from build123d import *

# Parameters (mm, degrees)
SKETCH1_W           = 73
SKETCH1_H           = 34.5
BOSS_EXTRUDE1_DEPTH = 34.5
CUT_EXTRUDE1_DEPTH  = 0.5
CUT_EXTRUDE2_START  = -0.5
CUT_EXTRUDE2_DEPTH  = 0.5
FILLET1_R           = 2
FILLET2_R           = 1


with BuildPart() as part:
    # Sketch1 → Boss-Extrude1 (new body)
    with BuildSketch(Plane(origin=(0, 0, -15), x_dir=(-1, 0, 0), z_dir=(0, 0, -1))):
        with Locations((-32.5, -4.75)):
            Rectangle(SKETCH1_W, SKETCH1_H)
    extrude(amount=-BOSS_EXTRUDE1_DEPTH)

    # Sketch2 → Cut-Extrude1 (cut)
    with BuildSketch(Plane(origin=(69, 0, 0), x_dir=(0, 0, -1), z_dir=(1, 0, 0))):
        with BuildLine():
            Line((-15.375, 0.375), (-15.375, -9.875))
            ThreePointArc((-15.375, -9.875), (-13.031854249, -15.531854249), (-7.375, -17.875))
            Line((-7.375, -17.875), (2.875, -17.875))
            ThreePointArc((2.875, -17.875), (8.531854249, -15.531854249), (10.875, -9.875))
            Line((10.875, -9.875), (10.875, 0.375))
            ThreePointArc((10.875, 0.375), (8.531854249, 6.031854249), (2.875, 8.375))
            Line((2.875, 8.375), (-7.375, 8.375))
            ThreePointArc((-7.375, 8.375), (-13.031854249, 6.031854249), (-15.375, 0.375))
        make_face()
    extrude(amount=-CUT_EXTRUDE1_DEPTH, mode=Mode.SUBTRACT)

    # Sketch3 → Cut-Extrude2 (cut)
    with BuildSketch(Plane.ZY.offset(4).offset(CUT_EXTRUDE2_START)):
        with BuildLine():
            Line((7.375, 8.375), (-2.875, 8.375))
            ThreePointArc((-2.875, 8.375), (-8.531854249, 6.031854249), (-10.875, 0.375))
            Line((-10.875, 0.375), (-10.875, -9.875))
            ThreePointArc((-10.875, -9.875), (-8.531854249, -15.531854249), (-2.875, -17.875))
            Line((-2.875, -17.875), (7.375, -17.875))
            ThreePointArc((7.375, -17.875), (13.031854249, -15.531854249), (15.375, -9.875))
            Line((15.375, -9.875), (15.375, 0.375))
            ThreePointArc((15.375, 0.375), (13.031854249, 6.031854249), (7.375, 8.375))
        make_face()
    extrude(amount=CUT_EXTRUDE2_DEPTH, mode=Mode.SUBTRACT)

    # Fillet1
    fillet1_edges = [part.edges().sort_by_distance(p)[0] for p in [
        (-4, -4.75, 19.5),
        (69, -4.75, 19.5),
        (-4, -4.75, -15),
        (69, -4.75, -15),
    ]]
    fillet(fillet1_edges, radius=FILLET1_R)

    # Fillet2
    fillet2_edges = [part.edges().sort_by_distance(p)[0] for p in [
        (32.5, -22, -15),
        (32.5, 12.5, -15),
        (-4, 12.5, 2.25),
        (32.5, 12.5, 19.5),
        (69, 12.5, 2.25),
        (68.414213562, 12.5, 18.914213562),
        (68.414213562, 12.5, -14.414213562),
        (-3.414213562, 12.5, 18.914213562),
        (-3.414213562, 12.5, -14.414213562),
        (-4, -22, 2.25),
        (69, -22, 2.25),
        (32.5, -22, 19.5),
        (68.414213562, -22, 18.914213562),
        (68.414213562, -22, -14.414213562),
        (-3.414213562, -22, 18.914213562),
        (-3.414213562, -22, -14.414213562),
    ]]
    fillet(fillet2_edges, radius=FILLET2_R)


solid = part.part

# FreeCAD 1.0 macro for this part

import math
import FreeCAD as App
import Part
import Sketcher

V = App.Vector


def edges_at(feature, points):
    """Names of the edges that pass closest to the given points."""
    edges = feature.Shape.Edges
    near = lambda p: min(range(len(edges)), key=lambda i: edges[i].distToShape(Part.Vertex(*p))[0])
    return sorted({f"Edge{near(p) + 1}" for p in points})

doc = App.newDocument("Part")
body = doc.addObject("PartDesign::Body", "Body")

# Sketch on XY plane
sketch1 = doc.addObject("Sketcher::SketchObject", "Sketch")
body.addObject(sketch1)
sketch1.AttachmentSupport = (doc.XY_Plane, [""])
sketch1.MapMode = "FlatFace"
sketch1.AttachmentOffset = App.Placement(V(0, 0, -15), App.Rotation())
sketch1.addGeometry([
    Part.LineSegment(V(69, 12, 0), V(69, -22, 0)),
    Part.LineSegment(V(69, -22, 0), V(-4, -22, 0)),
    Part.LineSegment(V(-4, -22, 0), V(-4, 12, 0)),
    Part.LineSegment(V(-4, 12, 0), V(69, 12, 0)),
], False)
sketch1.addConstraint([
    Sketcher.Constraint("Coincident", 0, 2, 1, 1),
    Sketcher.Constraint("Coincident", 1, 2, 2, 1),
    Sketcher.Constraint("Coincident", 2, 2, 3, 1),
    Sketcher.Constraint("Coincident", 3, 2, 0, 1),
    Sketcher.Constraint("Vertical", 0),
    Sketcher.Constraint("Horizontal", 1),
    Sketcher.Constraint("Vertical", 2),
    Sketcher.Constraint("Horizontal", 3),
    Sketcher.Constraint("DistanceX", 1, 2, 1, 1, 73.0),
    Sketcher.Constraint("DistanceY", 0, 2, 0, 1, 34.5),
    Sketcher.Constraint("DistanceX", -1, 1, 0, 2, 69.0),
    Sketcher.Constraint("DistanceY", 0, 2, -1, 1, 22.0),
])
pad1 = doc.addObject("PartDesign::Pad", "Pad")
body.addObject(pad1)
pad1.Profile = sketch1
pad1.Length = 34.5

# Sketch on YZ plane
sketch2 = doc.addObject("Sketcher::SketchObject", "Sketch001")
body.addObject(sketch2)
sketch2.AttachmentSupport = (doc.YZ_Plane, [""])
sketch2.MapMode = "FlatFace"
sketch2.AttachmentOffset = App.Placement(V(0, 0, 69), App.Rotation())
sketch2.addGeometry([
    Part.LineSegment(V(0, 15, 0), V(-10, 15, 0)),  # 0
    Part.ArcOfCircle(Part.Circle(V(-10, 7, 0), V(0, 0, 1), 8), math.radians(90), math.radians(180)),  # 1
    Part.LineSegment(V(-18, 7, 0), V(-18, -3, 0)),  # 2
    Part.ArcOfCircle(Part.Circle(V(-10, -3, 0), V(0, 0, 1), 8), math.radians(-180), math.radians(-90)),  # 3
    Part.LineSegment(V(-10, -11, 0), V(0, -11, 0)),  # 4
    Part.ArcOfCircle(Part.Circle(V(0, -3, 0), V(0, 0, 1), 8), math.radians(-90), math.radians(0)),  # 5
    Part.LineSegment(V(8, -3, 0), V(8, 7, 0)),  # 6
    Part.ArcOfCircle(Part.Circle(V(0, 7, 0), V(0, 0, 1), 8), math.radians(0), math.radians(90)),  # 7
], False)
sketch2.addConstraint([
    Sketcher.Constraint("Tangent", 0, 2, 1, 1),
    Sketcher.Constraint("Tangent", 1, 2, 2, 1),
    Sketcher.Constraint("Tangent", 2, 2, 3, 1),
    Sketcher.Constraint("Tangent", 3, 2, 4, 1),
    Sketcher.Constraint("Tangent", 4, 2, 5, 1),
    Sketcher.Constraint("Tangent", 5, 2, 6, 1),
    Sketcher.Constraint("Tangent", 6, 2, 7, 1),
    Sketcher.Constraint("Tangent", 7, 2, 0, 1),
    Sketcher.Constraint("Horizontal", 0),
    Sketcher.Constraint("Vertical", 2),
    Sketcher.Constraint("Horizontal", 4),
    Sketcher.Constraint("Vertical", 6),
    Sketcher.Constraint("Equal", 1, 3),
    Sketcher.Constraint("Equal", 3, 5),
    Sketcher.Constraint("Equal", 5, 7),
    Sketcher.Constraint("Equal", 4, 2),
    Sketcher.Constraint("Radius", 1, 8.0),
    Sketcher.Constraint("DistanceX", 0, 2, 0, 1, 10.25),
    Sketcher.Constraint("DistanceX", 1, 3, -1, 1, 9.875),
    Sketcher.Constraint("DistanceY", -1, 1, 1, 3, 7.375),
])
pocket1 = doc.addObject("PartDesign::Pocket", "Pocket")
body.addObject(pocket1)
pocket1.Profile = sketch2
pocket1.Length = 0.5

# Sketch on YZ plane
sketch3 = doc.addObject("Sketcher::SketchObject", "Sketch002")
body.addObject(sketch3)
sketch3.AttachmentSupport = (doc.YZ_Plane, [""])
sketch3.MapMode = "FlatFace"
sketch3.AttachmentOffset = App.Placement(V(0, 0, -3.5), App.Rotation())
sketch3.addGeometry([
    Part.LineSegment(V(8, 7, 0), V(8, -3, 0)),  # 0
    Part.ArcOfCircle(Part.Circle(V(0, -3, 0), V(0, 0, 1), 8), math.radians(-90), math.radians(0)),  # 1
    Part.LineSegment(V(0, -11, 0), V(-10, -11, 0)),  # 2
    Part.ArcOfCircle(Part.Circle(V(-10, -3, 0), V(0, 0, 1), 8), math.radians(-180), math.radians(-90)),  # 3
    Part.LineSegment(V(-18, -3, 0), V(-18, 7, 0)),  # 4
    Part.ArcOfCircle(Part.Circle(V(-10, 7, 0), V(0, 0, 1), 8), math.radians(90), math.radians(180)),  # 5
    Part.LineSegment(V(-10, 15, 0), V(0, 15, 0)),  # 6
    Part.ArcOfCircle(Part.Circle(V(0, 7, 0), V(0, 0, 1), 8), math.radians(0), math.radians(90)),  # 7
], False)
sketch3.addConstraint([
    Sketcher.Constraint("Tangent", 0, 2, 1, 2),
    Sketcher.Constraint("Tangent", 1, 1, 2, 1),
    Sketcher.Constraint("Tangent", 2, 2, 3, 2),
    Sketcher.Constraint("Tangent", 3, 1, 4, 1),
    Sketcher.Constraint("Tangent", 4, 2, 5, 2),
    Sketcher.Constraint("Tangent", 5, 1, 6, 1),
    Sketcher.Constraint("Tangent", 6, 2, 7, 2),
    Sketcher.Constraint("Tangent", 7, 1, 0, 1),
    Sketcher.Constraint("Vertical", 0),
    Sketcher.Constraint("Horizontal", 2),
    Sketcher.Constraint("Vertical", 4),
    Sketcher.Constraint("Horizontal", 6),
    Sketcher.Constraint("Equal", 1, 3),
    Sketcher.Constraint("Equal", 3, 5),
    Sketcher.Constraint("Equal", 5, 7),
    Sketcher.Constraint("Equal", 6, 0),
    Sketcher.Constraint("Radius", 1, 8.0),
    Sketcher.Constraint("DistanceX", 2, 2, 2, 1, 10.25),
    Sketcher.Constraint("DistanceX", -1, 1, 1, 3, 0.375),
    Sketcher.Constraint("DistanceY", 1, 3, -1, 1, 2.875),
])
pocket2 = doc.addObject("PartDesign::Pocket", "Pocket001")
body.addObject(pocket2)
pocket2.Profile = sketch3
pocket2.Length = 0.5
doc.recompute()

fillet = doc.addObject("PartDesign::Fillet", "Fillet")
body.addObject(fillet)
fillet.Base = (pocket2, edges_at(pocket2, [
    (-4, -4.75, 19.5),
    (69, -4.75, 19.5),
    (-4, -4.75, -15),
    (69, -4.75, -15),
]))
fillet.Radius = 2
doc.recompute()

fillet2 = doc.addObject("PartDesign::Fillet", "Fillet001")
body.addObject(fillet2)
fillet2.Base = (fillet, edges_at(fillet, [
    (32.5, -22, -15),
    (32.5, 12.5, -15),
    (-4, 12.5, 2.25),
    (32.5, 12.5, 19.5),
    (69, 12.5, 2.25),
    (68.414, 12.5, 18.914),
    (68.414, 12.5, -14.414),
    (-3.414, 12.5, 18.914),
    (-3.414, 12.5, -14.414),
    (-4, -22, 2.25),
    (69, -22, 2.25),
    (32.5, -22, 19.5),
    (68.414, -22, 18.914),
    (68.414, -22, -14.414),
    (-3.414, -22, 18.914),
    (-3.414, -22, -14.414),
]))
fillet2.Radius = 1

doc.recompute()
